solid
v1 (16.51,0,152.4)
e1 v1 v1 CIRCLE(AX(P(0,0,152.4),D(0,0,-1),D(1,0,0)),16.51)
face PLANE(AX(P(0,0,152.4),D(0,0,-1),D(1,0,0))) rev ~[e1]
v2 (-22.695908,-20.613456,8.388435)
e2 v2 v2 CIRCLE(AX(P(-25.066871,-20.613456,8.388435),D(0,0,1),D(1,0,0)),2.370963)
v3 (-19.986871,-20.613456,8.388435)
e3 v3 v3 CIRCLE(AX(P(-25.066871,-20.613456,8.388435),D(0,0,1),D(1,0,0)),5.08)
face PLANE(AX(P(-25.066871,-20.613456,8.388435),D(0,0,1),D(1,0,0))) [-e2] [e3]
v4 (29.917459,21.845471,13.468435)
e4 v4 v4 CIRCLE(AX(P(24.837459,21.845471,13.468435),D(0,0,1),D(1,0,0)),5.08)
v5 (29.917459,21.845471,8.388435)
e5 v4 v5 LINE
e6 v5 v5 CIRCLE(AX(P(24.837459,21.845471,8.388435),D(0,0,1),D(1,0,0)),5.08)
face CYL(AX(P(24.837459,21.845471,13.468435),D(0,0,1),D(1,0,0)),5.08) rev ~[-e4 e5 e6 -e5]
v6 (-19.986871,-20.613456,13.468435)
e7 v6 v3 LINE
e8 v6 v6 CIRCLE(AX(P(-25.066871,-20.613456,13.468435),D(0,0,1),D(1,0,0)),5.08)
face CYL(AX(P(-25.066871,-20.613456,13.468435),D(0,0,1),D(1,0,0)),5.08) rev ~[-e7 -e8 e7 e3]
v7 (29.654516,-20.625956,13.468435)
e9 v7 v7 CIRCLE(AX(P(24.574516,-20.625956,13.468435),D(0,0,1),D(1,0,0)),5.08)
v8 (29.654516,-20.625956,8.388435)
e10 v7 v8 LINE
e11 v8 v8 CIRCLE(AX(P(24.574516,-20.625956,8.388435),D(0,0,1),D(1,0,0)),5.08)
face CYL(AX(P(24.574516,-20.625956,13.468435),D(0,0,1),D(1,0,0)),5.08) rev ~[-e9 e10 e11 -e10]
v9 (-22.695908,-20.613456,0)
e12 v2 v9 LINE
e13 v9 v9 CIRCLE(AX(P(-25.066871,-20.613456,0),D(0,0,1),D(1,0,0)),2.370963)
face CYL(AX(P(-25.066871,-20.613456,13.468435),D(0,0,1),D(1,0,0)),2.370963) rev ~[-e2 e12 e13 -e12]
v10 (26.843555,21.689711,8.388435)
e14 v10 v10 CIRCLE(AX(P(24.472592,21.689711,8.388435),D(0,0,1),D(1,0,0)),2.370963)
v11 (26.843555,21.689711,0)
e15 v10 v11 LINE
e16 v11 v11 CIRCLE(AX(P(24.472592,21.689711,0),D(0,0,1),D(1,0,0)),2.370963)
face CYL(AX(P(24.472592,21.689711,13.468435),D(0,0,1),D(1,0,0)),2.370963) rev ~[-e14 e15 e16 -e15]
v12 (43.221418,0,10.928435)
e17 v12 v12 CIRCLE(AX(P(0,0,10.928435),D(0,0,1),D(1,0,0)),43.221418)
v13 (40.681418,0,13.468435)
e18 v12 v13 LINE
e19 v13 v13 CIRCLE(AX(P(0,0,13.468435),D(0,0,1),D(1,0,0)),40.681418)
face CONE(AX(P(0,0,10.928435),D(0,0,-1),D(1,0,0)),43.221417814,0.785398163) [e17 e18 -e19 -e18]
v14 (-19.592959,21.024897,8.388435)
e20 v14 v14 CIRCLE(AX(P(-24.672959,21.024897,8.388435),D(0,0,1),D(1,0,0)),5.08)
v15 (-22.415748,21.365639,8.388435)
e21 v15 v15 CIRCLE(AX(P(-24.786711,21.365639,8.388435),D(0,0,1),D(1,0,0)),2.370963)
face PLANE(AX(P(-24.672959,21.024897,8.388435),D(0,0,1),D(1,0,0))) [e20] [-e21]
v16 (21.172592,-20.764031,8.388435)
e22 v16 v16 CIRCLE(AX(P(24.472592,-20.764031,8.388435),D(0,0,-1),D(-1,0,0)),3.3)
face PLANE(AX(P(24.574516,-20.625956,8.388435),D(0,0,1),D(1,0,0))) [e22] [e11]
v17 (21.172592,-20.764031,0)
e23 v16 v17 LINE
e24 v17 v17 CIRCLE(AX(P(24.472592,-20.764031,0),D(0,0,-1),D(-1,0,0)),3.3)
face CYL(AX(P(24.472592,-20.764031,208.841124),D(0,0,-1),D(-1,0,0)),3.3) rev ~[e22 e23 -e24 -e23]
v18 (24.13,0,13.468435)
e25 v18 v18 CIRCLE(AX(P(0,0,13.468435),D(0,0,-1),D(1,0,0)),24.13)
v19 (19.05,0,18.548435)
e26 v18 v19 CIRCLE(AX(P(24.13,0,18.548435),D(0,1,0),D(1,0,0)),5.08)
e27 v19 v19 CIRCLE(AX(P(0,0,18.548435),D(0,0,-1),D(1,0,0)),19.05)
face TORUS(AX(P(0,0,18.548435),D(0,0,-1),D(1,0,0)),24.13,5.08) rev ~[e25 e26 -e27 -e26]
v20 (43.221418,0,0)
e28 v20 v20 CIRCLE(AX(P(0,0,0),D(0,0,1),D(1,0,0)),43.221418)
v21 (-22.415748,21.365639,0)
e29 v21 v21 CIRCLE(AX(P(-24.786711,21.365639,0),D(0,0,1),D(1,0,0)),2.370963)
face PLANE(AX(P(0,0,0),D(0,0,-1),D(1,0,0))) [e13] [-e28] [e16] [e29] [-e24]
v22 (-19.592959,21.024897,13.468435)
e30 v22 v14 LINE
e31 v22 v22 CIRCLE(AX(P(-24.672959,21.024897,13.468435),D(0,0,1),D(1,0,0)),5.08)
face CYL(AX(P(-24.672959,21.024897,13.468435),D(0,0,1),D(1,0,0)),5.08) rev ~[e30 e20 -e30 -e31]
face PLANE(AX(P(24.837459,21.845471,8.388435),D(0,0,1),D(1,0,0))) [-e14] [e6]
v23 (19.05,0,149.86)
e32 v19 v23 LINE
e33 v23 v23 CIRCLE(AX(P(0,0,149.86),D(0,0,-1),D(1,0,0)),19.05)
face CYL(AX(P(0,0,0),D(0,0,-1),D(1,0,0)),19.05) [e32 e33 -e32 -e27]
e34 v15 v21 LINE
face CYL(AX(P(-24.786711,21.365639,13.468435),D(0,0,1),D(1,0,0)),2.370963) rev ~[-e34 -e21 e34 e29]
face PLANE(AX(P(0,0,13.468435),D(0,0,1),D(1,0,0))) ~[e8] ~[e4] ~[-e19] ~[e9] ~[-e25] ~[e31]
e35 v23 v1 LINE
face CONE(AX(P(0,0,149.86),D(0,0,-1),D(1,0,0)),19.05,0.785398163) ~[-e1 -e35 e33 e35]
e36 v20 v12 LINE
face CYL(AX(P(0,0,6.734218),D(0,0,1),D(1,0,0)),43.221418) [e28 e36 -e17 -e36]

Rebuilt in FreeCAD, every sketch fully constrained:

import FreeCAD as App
import Part
import Sketcher

V = App.Vector
Q = App.Units.Quantity


def edges_at(feature, points):
    """Names of the edges that pass closest to the given points."""
    edges = feature.Shape.Edges
    near = lambda p: min(range(len(edges)), key=lambda i: edges[i].distToShape(Part.Vertex(*p))[0])
    return sorted({f"Edge{near(p) + 1}" for p in points})

doc = App.newDocument("Part")
body = doc.addObject("PartDesign::Body", "Body")

sketch1 = body.newObject("Sketcher::SketchObject", "Sketch")
sketch1.AttachmentSupport = (doc.getObject("XZ_Plane"), [""])
sketch1.MapMode = "FlatFace"
sketch1.addGeometry([
    Part.LineSegment(V(0, 13.468435, 0), V(0, 0, 0)),
    Part.LineSegment(V(0, 0, 0), V(43.221418, 0, 0)),
    Part.LineSegment(V(43.221418, 0, 0), V(43.221418, 13.468435, 0)),
    Part.LineSegment(V(43.221418, 13.468435, 0), V(0, 13.468435, 0)),
], False)
sketch1.addConstraint([
    Sketcher.Constraint("Coincident", 0, 2, 1, 1),
    Sketcher.Constraint("Coincident", 1, 2, 2, 1),
    Sketcher.Constraint("Coincident", 2, 2, 3, 1),
    Sketcher.Constraint("Coincident", 3, 2, 0, 1),
    Sketcher.Constraint("Vertical", 0),
    Sketcher.Constraint("Horizontal", 1),
    Sketcher.Constraint("Vertical", 2),
    Sketcher.Constraint("Horizontal", 3),
    Sketcher.Constraint("Coincident", 0, 2, -1, 1),
    Sketcher.Constraint("DistanceX", 1, 1, 1, 2, 43.221418),
    Sketcher.Constraint("DistanceY", 0, 2, 0, 1, 13.468435),
])
revolution = body.newObject("PartDesign::Revolution", "Revolution")
revolution.Profile = sketch1
revolution.ReferenceAxis = (sketch1, ["V_Axis"])
revolution.Angle = 360

sketch2 = body.newObject("Sketcher::SketchObject", "Sketch001")
sketch2.AttachmentSupport = (doc.getObject("XY_Plane"), [""])
sketch2.MapMode = "FlatFace"
sketch2.addGeometry(Part.Circle(V(0, 0, 0), V(0, 0, 1), 19.05), False)
sketch2.addConstraint([
    Sketcher.Constraint("Coincident", 0, 3, -1, 1),
    Sketcher.Constraint("Diameter", 0, Q("1.5 in")),
])
pad1 = body.newObject("PartDesign::Pad", "Pad")
pad1.Profile = sketch2
pad1.Length = Q("6 in")

sketch3 = body.newObject("Sketcher::SketchObject", "Sketch002")
sketch3.AttachmentSupport = (doc.getObject("XY_Plane"), [""])
sketch3.MapMode = "FlatFace"
sketch3.AttachmentOffset = App.Placement(V(0, 0, 13.468435), App.Rotation())
sketch3.addGeometry([
    Part.Circle(V(-24.672959, 21.024897, 0), V(0, 0, 1), 5.08),
    Part.Circle(V(24.837459, 21.845471, 0), V(0, 0, 1), 5.08),
    Part.Circle(V(-25.066871, -20.613456, 0), V(0, 0, 1), 5.08),
    Part.Circle(V(24.574516, -20.625956, 0), V(0, 0, 1), 5.08),
], False)
sketch3.addConstraint([
    Sketcher.Constraint("Equal", 0, 1),
    Sketcher.Constraint("Equal", 1, 2),
    Sketcher.Constraint("Equal", 2, 3),
    Sketcher.Constraint("Diameter", 0, Q("0.4 in")),
    Sketcher.Constraint("DistanceY", 3, 3, 2, 3, 0.0125),
    Sketcher.Constraint("DistanceX", 0, 3, -1, 1, 24.672959),
    Sketcher.Constraint("DistanceX", -1, 1, 1, 3, 24.837459),
    Sketcher.Constraint("DistanceY", -1, 1, 1, 3, 21.845471),
    Sketcher.Constraint("DistanceX", 2, 3, -1, 1, 25.066871),
    Sketcher.Constraint("DistanceY", -1, 1, 0, 3, 21.024897),
    Sketcher.Constraint("DistanceY", 2, 3, -1, 1, 20.613456),
    Sketcher.Constraint("DistanceX", -1, 1, 3, 3, 24.574516),
])
pocket1 = body.newObject("PartDesign::Pocket", "Pocket")
pocket1.Profile = sketch3
pocket1.Length = Q("0.2 in")

sketch4 = body.newObject("Sketcher::SketchObject", "Sketch003")
sketch4.AttachmentSupport = (doc.getObject("XY_Plane"), [""])
sketch4.MapMode = "FlatFace"
sketch4.AttachmentOffset = App.Placement(V(0, 0, 13.468435), App.Rotation())
sketch4.addGeometry([
    Part.Circle(V(-25.066871, -20.613456, 0), V(0, 0, 1), 2.370963),
    Part.Circle(V(24.472592, -20.764031, 0), V(0, 0, 1), 2.370963),
    Part.Circle(V(24.472592, 21.689711, 0), V(0, 0, 1), 2.370963),
    Part.Circle(V(-24.786711, 21.365639, 0), V(0, 0, 1), 2.370963),
], False)
sketch4.addConstraint([
    Sketcher.Constraint("Equal", 0, 1),
    Sketcher.Constraint("Equal", 1, 2),
    Sketcher.Constraint("Equal", 2, 3),
    Sketcher.Constraint("Vertical", 1, 3, 2, 3),
    Sketcher.Constraint("Diameter", 0, 4.741925),
    Sketcher.Constraint("DistanceX", 0, 3, -1, 1, 25.066871),
    Sketcher.Constraint("DistanceY", 1, 3, -1, 1, 20.764031),
    Sketcher.Constraint("DistanceY", -1, 1, 2, 3, 21.689711),
    Sketcher.Constraint("DistanceX", 3, 3, -1, 1, 24.786711),
    Sketcher.Constraint("DistanceY", -1, 1, 3, 3, 21.365639),
    Sketcher.Constraint("DistanceY", 0, 3, -1, 1, 20.613456),
    Sketcher.Constraint("DistanceX", -1, 1, 1, 3, 24.472592),
])
pocket2 = body.newObject("PartDesign::Pocket", "Pocket001")
pocket2.Profile = sketch4
pocket2.Length = Q("1 in")
doc.recompute()

chamfer = body.newObject("PartDesign::Chamfer", "Chamfer")
chamfer.Base = (pocket2, edges_at(pocket2, [(-19.05, 0, 152.4), (-43.221, 0, 13.468)]))
chamfer.Size = Q("0.1 in")
doc.recompute()

fillet = body.newObject("PartDesign::Fillet", "Fillet")
fillet.Base = (chamfer, edges_at(chamfer, [(-19.05, 0, 13.468)]))
fillet.Radius = Q("0.2 in")

sketch5 = body.newObject("Sketcher::SketchObject", "Sketch004")
sketch5.AttachmentSupport = (doc.getObject("XY_Plane"), [""])
sketch5.MapMode = "FlatFace"
sketch5.AttachmentOffset = App.Placement(V(0, 0, 13.468435), App.Rotation())
sketch5.addGeometry(Part.Circle(V(24.472592, -20.764031, 0), V(0, 0, 1), 3.3), False)
sketch5.addConstraint([
    Sketcher.Constraint("Diameter", 0, 6.6),
    Sketcher.Constraint("DistanceY", 0, 3, -1, 1, 20.764031),
    Sketcher.Constraint("DistanceX", -1, 1, 0, 3, 24.472592),
])
doc.recompute()
hole = body.newObject("PartDesign::Hole", "Hole")
hole.Profile = sketch5
hole.ThreadType = "None"
hole.Diameter = 6.6
hole.DepthType = "ThroughAll"

doc.recompute()
